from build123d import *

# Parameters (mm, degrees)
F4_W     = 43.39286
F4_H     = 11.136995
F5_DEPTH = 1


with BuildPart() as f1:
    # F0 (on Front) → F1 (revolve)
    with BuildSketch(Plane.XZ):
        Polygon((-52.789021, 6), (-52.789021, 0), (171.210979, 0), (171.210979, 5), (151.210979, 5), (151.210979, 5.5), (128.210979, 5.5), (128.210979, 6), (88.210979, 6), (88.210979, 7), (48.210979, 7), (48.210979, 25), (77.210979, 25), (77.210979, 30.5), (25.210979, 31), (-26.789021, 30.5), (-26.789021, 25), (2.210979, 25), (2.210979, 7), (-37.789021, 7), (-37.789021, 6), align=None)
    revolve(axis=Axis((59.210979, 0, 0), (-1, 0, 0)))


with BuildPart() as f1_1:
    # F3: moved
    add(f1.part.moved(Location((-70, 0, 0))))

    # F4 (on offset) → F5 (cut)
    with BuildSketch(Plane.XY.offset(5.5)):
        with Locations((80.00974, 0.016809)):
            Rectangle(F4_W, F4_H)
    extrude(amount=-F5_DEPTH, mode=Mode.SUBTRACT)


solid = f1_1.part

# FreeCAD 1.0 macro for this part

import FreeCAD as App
import Part
import Sketcher

V = App.Vector


def add_polygon(sketch, points):
    """Adds a closed chain of lines whose ends are joined by coincident constraints."""
    first, n = sketch.GeometryCount, len(points)
    for a, b in zip(points, points[1:] + points[:1]):
        sketch.addGeometry(Part.LineSegment(App.Vector(*a, 0), App.Vector(*b, 0)), False)
    for i in range(n):
        sketch.addConstraint(Sketcher.Constraint("Coincident", first + i, 2, first + (i + 1) % n, 1))

doc = App.newDocument("Part")
body = doc.addObject("PartDesign::Body", "Body")

# Sketch on XZ plane
sketch1 = body.newObject("Sketcher::SketchObject", "Sketch")
sketch1.AttachmentSupport = (doc.getObject("XZ_Plane"), [""])
sketch1.MapMode = "FlatFace"
add_polygon(sketch1, [(-52.8, 6), (-52.8, 0), (171.2, 0), (171.2, 5), (151.2, 5), (151.2, 5.5), (128.2, 5.5), (128.2, 6), (88.2, 6), (88.2, 7), (48.2, 7), (48.2, 25), (77.2, 25), (77.2, 30.5), (25.2, 31), (-26.8, 30.5), (-26.8, 25), (2.2, 25), (2.2, 7), (-37.8, 7), (-37.8, 6)])  # lines 0-20
sketch1.addConstraint(Sketcher.Constraint("Vertical", 0))
sketch1.addConstraint(Sketcher.Constraint("Horizontal", 1))
sketch1.addConstraint(Sketcher.Constraint("Vertical", 2))
sketch1.addConstraint(Sketcher.Constraint("Horizontal", 3))
sketch1.addConstraint(Sketcher.Constraint("Vertical", 4))
sketch1.addConstraint(Sketcher.Constraint("Horizontal", 5))
sketch1.addConstraint(Sketcher.Constraint("Vertical", 6))
sketch1.addConstraint(Sketcher.Constraint("Horizontal", 7))
sketch1.addConstraint(Sketcher.Constraint("Vertical", 8))
sketch1.addConstraint(Sketcher.Constraint("Horizontal", 9))
sketch1.addConstraint(Sketcher.Constraint("Vertical", 10))
sketch1.addConstraint(Sketcher.Constraint("Horizontal", 11))
sketch1.addConstraint(Sketcher.Constraint("Vertical", 12))
sketch1.addConstraint(Sketcher.Constraint("Vertical", 15))
sketch1.addConstraint(Sketcher.Constraint("Horizontal", 16))
sketch1.addConstraint(Sketcher.Constraint("Vertical", 17))
sketch1.addConstraint(Sketcher.Constraint("Horizontal", 18))
sketch1.addConstraint(Sketcher.Constraint("Vertical", 19))
sketch1.addConstraint(Sketcher.Constraint("Horizontal", 20))
sketch1.addConstraint(Sketcher.Constraint("PointOnObject", 0, 2, -1))
sketch1.addConstraint(Sketcher.Constraint("Horizontal", 12, 2, 14, 2))
sketch1.addConstraint(Sketcher.Constraint("Horizontal", 11, 2, 15, 2))
sketch1.addConstraint(Sketcher.Constraint("Horizontal", 9, 2, 17, 2))
sketch1.addConstraint(Sketcher.Constraint("Horizontal", 7, 2, 19, 2))
sketch1.addConstraint(Sketcher.Constraint("Equal", 7, 9))
sketch1.addConstraint(Sketcher.Constraint("Equal", 11, 16))
sketch1.addConstraint(Sketcher.Constraint("Equal", 9, 18))
sketch1.addConstraint(Sketcher.Constraint("Equal", 4, 6))
sketch1.addConstraint(Sketcher.Constraint("Equal", 13, 14))
sketch1.addConstraint(Sketcher.Constraint("DistanceX", 1, 1, 1, 2, 224.0))
sketch1.addConstraint(Sketcher.Constraint("DistanceX", 3, 2, 3, 1, 20.0))
sketch1.addConstraint(Sketcher.Constraint("DistanceX", 5, 2, 5, 1, 23.0))
sketch1.addConstraint(Sketcher.Constraint("DistanceX", 7, 2, 7, 1, 40.0))
sketch1.addConstraint(Sketcher.Constraint("DistanceX", 11, 1, 11, 2, 29.0))
sketch1.addConstraint(Sketcher.Constraint("DistanceX", 20, 2, 20, 1, 15.0))
sketch1.addConstraint(Sketcher.Constraint("DistanceY", 0, 2, 0, 1, 6.0))
sketch1.addConstraint(Sketcher.Constraint("DistanceY", 2, 1, 2, 2, 5.0))
sketch1.addConstraint(Sketcher.Constraint("DistanceY", 8, 1, 8, 2, 1.0))
sketch1.addConstraint(Sketcher.Constraint("DistanceY", 10, 1, 10, 2, 18.0))
sketch1.addConstraint(Sketcher.Constraint("DistanceY", 12, 1, 12, 2, 5.5))
sketch1.addConstraint(Sketcher.Constraint("DistanceY", -1, 1, 13, 2, 31.0))
sketch1.addConstraint(Sketcher.Constraint("DistanceX", 0, 2, -1, 1, 52.789021))
revolution = body.newObject("PartDesign::Revolution", "Revolution")
revolution.Profile = sketch1
revolution.ReferenceAxis = (sketch1, ["H_Axis"])
revolution.Angle = 360
body2 = doc.addObject("PartDesign::Body", "Body001")
doc.recompute()

body.Placement = App.Placement(V(-70, 0, 0), App.Rotation(V(0, 0, 1), 0))
boolean = body2.newObject("PartDesign::Boolean", "Boolean")
boolean.Type = "Fuse"
boolean.addObjects([body])

# Sketch on XY plane
sketch2 = body2.newObject("Sketcher::SketchObject", "Sketch001")
sketch2.AttachmentSupport = (doc.getObject("XY_Plane001"), [""])
sketch2.MapMode = "FlatFace"
sketch2.AttachmentOffset = App.Placement(V(0, 0, 5.5), App.Rotation())
add_polygon(sketch2, [(58, 6), (58, -6), (102, -6), (102, 6)])  # lines 0-3
sketch2.addConstraint(Sketcher.Constraint("Vertical", 0))
sketch2.addConstraint(Sketcher.Constraint("Horizontal", 1))
sketch2.addConstraint(Sketcher.Constraint("Vertical", 2))
sketch2.addConstraint(Sketcher.Constraint("Horizontal", 3))
sketch2.addConstraint(Sketcher.Constraint("DistanceX", 1, 1, 1, 2, 43.39286))
sketch2.addConstraint(Sketcher.Constraint("DistanceY", 0, 2, 0, 1, 11.136995))
sketch2.addConstraint(Sketcher.Constraint("DistanceX", -1, 1, 0, 2, 58.31331))
sketch2.addConstraint(Sketcher.Constraint("DistanceY", 0, 2, -1, 1, 5.551689))
pocket1 = body2.newObject("PartDesign::Pocket", "Pocket")
pocket1.Profile = sketch2
pocket1.Length = 1

doc.recompute()
